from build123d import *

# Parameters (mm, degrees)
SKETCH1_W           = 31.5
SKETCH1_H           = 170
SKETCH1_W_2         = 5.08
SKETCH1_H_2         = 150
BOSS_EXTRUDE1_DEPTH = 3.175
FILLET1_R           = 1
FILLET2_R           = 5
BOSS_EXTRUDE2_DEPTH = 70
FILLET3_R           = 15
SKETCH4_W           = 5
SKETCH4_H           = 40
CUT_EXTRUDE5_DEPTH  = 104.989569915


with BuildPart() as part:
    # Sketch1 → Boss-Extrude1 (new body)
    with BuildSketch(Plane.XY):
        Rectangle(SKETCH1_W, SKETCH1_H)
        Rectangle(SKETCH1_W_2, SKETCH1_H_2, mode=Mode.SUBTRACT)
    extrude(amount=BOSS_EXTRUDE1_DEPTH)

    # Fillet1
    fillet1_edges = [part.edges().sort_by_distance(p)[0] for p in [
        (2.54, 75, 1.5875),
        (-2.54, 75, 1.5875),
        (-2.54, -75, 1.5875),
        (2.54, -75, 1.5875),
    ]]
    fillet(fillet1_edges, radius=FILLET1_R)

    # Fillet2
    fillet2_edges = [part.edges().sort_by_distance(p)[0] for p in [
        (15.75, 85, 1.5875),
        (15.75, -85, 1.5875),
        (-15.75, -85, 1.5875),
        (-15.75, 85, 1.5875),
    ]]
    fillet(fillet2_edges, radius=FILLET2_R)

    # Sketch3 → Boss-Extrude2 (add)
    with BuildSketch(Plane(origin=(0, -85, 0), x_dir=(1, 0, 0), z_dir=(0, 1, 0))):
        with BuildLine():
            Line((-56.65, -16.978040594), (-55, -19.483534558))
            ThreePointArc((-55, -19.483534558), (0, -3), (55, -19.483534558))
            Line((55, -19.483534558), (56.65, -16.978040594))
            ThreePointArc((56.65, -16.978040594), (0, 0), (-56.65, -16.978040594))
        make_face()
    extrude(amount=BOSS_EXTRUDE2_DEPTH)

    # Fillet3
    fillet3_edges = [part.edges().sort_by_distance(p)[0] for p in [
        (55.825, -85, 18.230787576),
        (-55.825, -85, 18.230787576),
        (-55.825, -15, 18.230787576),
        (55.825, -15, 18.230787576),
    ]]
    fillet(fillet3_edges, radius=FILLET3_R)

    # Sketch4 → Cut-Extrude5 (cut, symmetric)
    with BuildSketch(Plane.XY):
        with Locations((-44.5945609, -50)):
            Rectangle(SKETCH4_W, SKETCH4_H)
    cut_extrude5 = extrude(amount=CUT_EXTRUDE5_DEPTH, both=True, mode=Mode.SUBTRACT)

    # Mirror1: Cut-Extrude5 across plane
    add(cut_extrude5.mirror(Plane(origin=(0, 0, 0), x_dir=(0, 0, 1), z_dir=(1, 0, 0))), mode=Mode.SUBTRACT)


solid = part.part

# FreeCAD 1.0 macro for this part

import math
import FreeCAD as App
import Part
import Sketcher

V = App.Vector
Q = App.Units.Quantity


def edges_at(feature, points):
    """Names of the edges that pass closest to the given points."""
    edges = feature.Shape.Edges
    near = lambda p: min(range(len(edges)), key=lambda i: edges[i].distToShape(Part.Vertex(*p))[0])
    return sorted({f"Edge{near(p) + 1}" for p in points})


def add_polygon(sketch, points):
    """Adds a closed chain of lines whose ends are joined by coincident constraints."""
    first, n = sketch.GeometryCount, len(points)
    for a, b in zip(points, points[1:] + points[:1]):
        sketch.addGeometry(Part.LineSegment(App.Vector(*a, 0), App.Vector(*b, 0)), False)
    for i in range(n):
        sketch.addConstraint(Sketcher.Constraint("Coincident", first + i, 2, first + (i + 1) % n, 1))

doc = App.newDocument("Part")
body = doc.addObject("PartDesign::Body", "Body")

sketch1 = body.newObject("Sketcher::SketchObject", "Sketch")
sketch1.AttachmentSupport = (doc.getObject("XY_Plane"), [""])
sketch1.MapMode = "FlatFace"
add_polygon(sketch1, [(-16, 85), (-16, -85), (16, -85), (16, 85)])
add_polygon(sketch1, [(3, -75), (-3, -75), (-3, 75), (3, 75)])
sketch1.addConstraint([
    Sketcher.Constraint("Vertical", 0),
    Sketcher.Constraint("Horizontal", 1),
    Sketcher.Constraint("Vertical", 2),
    Sketcher.Constraint("Horizontal", 3),
    Sketcher.Constraint("Horizontal", 4),
    Sketcher.Constraint("Vertical", 5),
    Sketcher.Constraint("Horizontal", 6),
    Sketcher.Constraint("Vertical", 7),
    Sketcher.Constraint("Symmetric", 0, 2, 2, 2, -1, 1),
    Sketcher.Constraint("Symmetric", 4, 2, 6, 2, -1, 1),
    Sketcher.Constraint("DistanceY", 0, 2, 0, 1, Q("170 mm")),
    Sketcher.Constraint("DistanceY", 5, 1, 5, 2, Q("150 mm")),
    Sketcher.Constraint("DistanceX", 1, 1, 1, 2, Q("31.5 mm")),
    Sketcher.Constraint("DistanceX", 4, 2, 4, 1, Q("5.08 mm")),
])
pad1 = body.newObject("PartDesign::Pad", "Pad")
pad1.Profile = sketch1
pad1.Length = 3.175
doc.recompute()

fillet = body.newObject("PartDesign::Fillet", "Fillet")
fillet.Base = (pad1, edges_at(pad1, [
    (2.54, 75, 1.587),
    (-2.54, 75, 1.587),
    (-2.54, -75, 1.587),
    (2.54, -75, 1.587),
]))
fillet.Radius = 1
doc.recompute()

fillet2 = body.newObject("PartDesign::Fillet", "Fillet001")
fillet2.Base = (fillet, edges_at(fillet, [
    (15.75, 85, 1.587),
    (15.75, -85, 1.587),
    (-15.75, -85, 1.587),
    (-15.75, 85, 1.587),
]))
fillet2.Radius = 5

sketch2 = body.newObject("Sketcher::SketchObject", "Sketch001")
sketch2.AttachmentSupport = (doc.getObject("XZ_Plane"), [""])
sketch2.MapMode = "FlatFace"
sketch2.AttachmentOffset = App.Placement(V(0, 0, 85), App.Rotation())
sketch2.addGeometry([
    Part.LineSegment(V(-56.6, 17, 0), V(-55, 19.5, 0)),
    Part.ArcOfCircle(Part.Circle(V(0, 103, 0), V(0, 0, 1), 100), math.radians(-123), math.radians(-57)),
    Part.LineSegment(V(55, 19.5, 0), V(56.6, 17, 0)),
    Part.ArcOfCircle(Part.Circle(V(0, 103, 0), V(0, 0, 1), 103), math.radians(-123), math.radians(-57)),
], False)
sketch2.addConstraint([
    Sketcher.Constraint("Coincident", 0, 2, 1, 1),
    Sketcher.Constraint("Coincident", 1, 2, 2, 1),
    Sketcher.Constraint("Coincident", 2, 2, 3, 2),
    Sketcher.Constraint("Coincident", 3, 1, 0, 1),
    Sketcher.Constraint("Coincident", 3, 3, 1, 3),
    Sketcher.Constraint("Symmetric", 0, 2, 1, 2, -2),
    Sketcher.Constraint("Horizontal", 2, 2, 3, 1),
    Sketcher.Constraint("Radius", 1, Q("100 mm")),
    Sketcher.Constraint("Radius", 3, Q("103 mm")),
    Sketcher.Constraint("DistanceY", -1, 1, 1, 3, Q("103 mm")),
    Sketcher.Constraint("DistanceX", 0, 2, -1, 1, Q("55 mm")),
    Sketcher.Constraint("DistanceX", 3, 1, 2, 2, Q("113.3 mm")),
])
pad2 = body.newObject("PartDesign::Pad", "Pad001")
pad2.Profile = sketch2
pad2.Length = 70
pad2.Reversed = True
doc.recompute()

fillet3 = body.newObject("PartDesign::Fillet", "Fillet002")
fillet3.Base = (pad2, edges_at(pad2, [
    (55.825, -85, 18.231),
    (-55.825, -85, 18.231),
    (-55.825, -15, 18.231),
    (55.825, -15, 18.231),
]))
fillet3.Radius = 15

sketch3 = body.newObject("Sketcher::SketchObject", "Sketch002")
sketch3.AttachmentSupport = (doc.getObject("XY_Plane"), [""])
sketch3.MapMode = "FlatFace"
add_polygon(sketch3, [(-47, -30), (-47, -70), (-42, -70), (-42, -30)])
sketch3.addConstraint([
    Sketcher.Constraint("Vertical", 0),
    Sketcher.Constraint("Horizontal", 1),
    Sketcher.Constraint("Vertical", 2),
    Sketcher.Constraint("Horizontal", 3),
    Sketcher.Constraint("DistanceX", 1, 1, 1, 2, Q("5 mm")),
    Sketcher.Constraint("DistanceY", 0, 2, 0, 1, Q("40 mm")),
    Sketcher.Constraint("DistanceY", 0, 2, -1, 1, Q("70 mm")),
    Sketcher.Constraint("DistanceX", 0, 2, -1, 1, Q("47.094561 mm")),
])
pocket1 = body.newObject("PartDesign::Pocket", "Pocket")
pocket1.Profile = sketch3
pocket1.Length = 209.97914
pocket1.Midplane = True
doc.recompute()

mirrored = body.newObject("PartDesign::Mirrored", "Mirrored")
mirrored.Originals = [pocket1]
mirrored.MirrorPlane = (doc.getObject("YZ_Plane"), [""])
body.Tip = mirrored

doc.recompute()
